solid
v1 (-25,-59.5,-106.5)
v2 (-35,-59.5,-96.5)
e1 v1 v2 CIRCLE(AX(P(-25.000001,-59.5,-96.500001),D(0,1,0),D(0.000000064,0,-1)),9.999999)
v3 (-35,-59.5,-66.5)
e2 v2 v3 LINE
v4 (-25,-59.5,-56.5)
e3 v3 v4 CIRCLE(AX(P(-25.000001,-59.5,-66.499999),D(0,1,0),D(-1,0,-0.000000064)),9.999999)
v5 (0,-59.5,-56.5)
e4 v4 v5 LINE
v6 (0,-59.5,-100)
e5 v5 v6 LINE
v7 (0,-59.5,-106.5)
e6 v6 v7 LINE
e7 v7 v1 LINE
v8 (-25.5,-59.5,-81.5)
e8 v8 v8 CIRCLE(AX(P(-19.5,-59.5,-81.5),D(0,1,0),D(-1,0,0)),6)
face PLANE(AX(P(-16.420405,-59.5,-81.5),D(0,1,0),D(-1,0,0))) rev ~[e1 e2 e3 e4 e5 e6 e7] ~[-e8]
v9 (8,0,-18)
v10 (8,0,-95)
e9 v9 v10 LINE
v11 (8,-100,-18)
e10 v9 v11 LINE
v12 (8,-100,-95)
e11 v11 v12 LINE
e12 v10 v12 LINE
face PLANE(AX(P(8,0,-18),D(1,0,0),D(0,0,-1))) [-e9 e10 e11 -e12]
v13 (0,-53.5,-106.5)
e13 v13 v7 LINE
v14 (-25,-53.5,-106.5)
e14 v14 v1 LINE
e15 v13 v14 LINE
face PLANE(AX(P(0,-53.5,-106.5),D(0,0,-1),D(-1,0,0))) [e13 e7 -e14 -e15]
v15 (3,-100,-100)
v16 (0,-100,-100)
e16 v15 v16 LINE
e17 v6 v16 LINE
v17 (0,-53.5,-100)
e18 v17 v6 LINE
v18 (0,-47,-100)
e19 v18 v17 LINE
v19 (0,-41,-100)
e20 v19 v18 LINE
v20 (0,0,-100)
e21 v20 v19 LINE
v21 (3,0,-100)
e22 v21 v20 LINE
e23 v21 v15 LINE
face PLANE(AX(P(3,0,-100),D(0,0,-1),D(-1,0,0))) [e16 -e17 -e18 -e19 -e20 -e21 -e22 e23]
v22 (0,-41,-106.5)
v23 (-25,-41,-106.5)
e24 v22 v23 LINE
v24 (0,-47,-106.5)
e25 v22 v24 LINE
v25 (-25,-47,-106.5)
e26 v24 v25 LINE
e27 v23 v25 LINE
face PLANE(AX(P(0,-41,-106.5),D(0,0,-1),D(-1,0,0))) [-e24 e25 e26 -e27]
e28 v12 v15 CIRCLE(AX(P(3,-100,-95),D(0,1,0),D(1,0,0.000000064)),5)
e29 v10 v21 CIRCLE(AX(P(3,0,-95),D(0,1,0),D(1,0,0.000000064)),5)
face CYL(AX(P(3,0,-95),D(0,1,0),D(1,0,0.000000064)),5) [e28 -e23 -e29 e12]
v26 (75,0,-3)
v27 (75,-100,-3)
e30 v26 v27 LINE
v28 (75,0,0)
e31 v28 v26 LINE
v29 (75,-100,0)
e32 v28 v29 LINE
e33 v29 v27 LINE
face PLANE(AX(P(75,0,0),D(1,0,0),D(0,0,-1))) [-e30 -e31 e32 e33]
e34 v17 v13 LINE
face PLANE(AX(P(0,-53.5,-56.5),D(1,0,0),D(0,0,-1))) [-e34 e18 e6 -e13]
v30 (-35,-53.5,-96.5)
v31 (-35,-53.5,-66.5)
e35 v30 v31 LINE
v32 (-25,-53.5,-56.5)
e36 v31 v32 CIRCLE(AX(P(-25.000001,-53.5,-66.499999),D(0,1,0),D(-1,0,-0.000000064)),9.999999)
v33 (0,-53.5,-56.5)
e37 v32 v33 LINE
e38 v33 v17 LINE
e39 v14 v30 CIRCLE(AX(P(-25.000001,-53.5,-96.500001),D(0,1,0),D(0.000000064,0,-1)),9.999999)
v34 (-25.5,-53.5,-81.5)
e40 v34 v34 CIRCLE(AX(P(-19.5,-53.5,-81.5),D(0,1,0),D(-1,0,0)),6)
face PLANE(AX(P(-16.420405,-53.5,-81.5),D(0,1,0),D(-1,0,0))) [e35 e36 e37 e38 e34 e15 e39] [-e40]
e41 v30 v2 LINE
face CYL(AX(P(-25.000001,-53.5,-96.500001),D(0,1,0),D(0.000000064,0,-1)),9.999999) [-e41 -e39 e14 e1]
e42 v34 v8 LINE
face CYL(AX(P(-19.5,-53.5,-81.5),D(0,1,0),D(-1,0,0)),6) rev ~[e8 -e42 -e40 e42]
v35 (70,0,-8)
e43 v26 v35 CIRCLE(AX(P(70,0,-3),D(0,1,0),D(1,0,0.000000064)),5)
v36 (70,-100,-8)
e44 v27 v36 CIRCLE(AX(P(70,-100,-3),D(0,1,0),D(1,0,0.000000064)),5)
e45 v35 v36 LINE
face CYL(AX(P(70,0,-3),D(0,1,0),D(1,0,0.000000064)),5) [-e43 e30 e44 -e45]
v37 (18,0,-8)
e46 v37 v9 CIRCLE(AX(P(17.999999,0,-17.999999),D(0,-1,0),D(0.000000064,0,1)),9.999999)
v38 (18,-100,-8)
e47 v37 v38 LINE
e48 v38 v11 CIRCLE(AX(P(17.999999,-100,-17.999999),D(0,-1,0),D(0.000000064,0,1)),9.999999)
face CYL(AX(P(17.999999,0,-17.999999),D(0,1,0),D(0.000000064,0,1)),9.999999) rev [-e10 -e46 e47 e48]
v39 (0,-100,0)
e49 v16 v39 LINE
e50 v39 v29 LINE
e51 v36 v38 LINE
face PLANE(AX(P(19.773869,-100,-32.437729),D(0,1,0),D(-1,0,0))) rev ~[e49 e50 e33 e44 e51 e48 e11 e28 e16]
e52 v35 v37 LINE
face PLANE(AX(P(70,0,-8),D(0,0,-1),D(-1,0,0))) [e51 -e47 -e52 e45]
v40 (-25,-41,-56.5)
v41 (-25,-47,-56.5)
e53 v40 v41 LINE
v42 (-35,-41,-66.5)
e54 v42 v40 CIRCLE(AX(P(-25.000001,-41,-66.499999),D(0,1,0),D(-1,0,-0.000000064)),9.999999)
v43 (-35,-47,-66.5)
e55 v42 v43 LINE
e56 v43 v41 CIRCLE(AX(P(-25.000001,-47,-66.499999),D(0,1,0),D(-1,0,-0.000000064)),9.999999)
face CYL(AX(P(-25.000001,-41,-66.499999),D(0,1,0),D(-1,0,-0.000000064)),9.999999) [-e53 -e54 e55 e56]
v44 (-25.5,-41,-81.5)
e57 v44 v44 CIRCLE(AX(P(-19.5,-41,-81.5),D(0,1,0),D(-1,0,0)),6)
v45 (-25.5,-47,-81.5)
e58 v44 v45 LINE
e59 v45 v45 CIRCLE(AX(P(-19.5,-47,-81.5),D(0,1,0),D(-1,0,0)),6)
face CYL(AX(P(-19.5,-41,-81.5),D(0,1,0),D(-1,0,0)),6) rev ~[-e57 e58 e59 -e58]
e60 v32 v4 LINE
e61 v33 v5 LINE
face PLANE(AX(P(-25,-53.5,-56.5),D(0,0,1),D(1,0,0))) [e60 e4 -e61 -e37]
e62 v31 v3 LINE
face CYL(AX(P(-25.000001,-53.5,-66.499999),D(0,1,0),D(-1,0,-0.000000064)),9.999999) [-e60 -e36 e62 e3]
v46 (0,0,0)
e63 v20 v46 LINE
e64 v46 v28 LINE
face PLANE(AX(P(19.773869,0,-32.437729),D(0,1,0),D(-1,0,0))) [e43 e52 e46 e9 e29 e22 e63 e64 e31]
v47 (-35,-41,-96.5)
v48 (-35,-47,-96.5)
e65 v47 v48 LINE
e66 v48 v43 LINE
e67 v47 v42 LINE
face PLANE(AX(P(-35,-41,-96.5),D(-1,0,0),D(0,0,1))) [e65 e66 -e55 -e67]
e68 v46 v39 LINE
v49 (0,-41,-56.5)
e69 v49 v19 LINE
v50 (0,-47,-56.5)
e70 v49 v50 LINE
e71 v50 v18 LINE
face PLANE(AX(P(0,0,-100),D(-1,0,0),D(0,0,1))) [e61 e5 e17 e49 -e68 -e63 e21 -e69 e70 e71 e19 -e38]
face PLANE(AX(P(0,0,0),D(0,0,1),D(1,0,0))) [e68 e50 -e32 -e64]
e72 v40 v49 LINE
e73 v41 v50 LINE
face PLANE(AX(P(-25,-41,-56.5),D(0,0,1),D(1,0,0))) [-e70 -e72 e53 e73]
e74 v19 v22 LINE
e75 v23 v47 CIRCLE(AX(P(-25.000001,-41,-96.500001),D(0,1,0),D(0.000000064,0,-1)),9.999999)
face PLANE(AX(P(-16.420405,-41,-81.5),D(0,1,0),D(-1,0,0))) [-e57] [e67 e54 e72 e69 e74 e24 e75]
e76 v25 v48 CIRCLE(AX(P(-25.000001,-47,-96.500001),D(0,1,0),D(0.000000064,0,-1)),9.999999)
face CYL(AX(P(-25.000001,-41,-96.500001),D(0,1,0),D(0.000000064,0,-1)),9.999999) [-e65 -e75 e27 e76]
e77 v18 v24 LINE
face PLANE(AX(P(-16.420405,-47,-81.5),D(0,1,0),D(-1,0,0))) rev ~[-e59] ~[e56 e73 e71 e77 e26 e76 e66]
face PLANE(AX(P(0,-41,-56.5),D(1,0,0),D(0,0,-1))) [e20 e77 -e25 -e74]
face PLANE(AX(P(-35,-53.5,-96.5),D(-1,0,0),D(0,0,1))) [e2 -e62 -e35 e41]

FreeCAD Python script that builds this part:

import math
import FreeCAD as App
import Part
import Sketcher
Q = App.Units.Quantity

doc = App.newDocument("Part")
body = doc.addObject("PartDesign::Body", "Body")

sketch1 = body.newObject("Sketcher::SketchObject", "Sketch")
sketch1.AttachmentSupport = (doc.getObject("XZ_Plane"), [""])
sketch1.MapMode = "FlatFace"
sketch1.addGeometry([
    Part.LineSegment(App.Vector(0, 0, 0), App.Vector(-75, 0, 0)),
    Part.LineSegment(App.Vector(-75, 0, 0), App.Vector(-75, -3, 0)),
    Part.ArcOfCircle(Part.Circle(App.Vector(-70, -3, 0), App.Vector(0, 0, 1), 5), math.radians(180), math.radians(270)),
    Part.LineSegment(App.Vector(-70, -8, 0), App.Vector(-18, -8, 0)),
    Part.ArcOfCircle(Part.Circle(App.Vector(-18, -18, 0), App.Vector(0, 0, 1), 10), math.radians(0), math.radians(90)),
    Part.LineSegment(App.Vector(-8, -18, 0), App.Vector(-8, -95, 0)),
    Part.ArcOfCircle(Part.Circle(App.Vector(-3, -95, 0), App.Vector(0, 0, 1), 5), math.radians(180), math.radians(270)),
    Part.LineSegment(App.Vector(-3, -100, 0), App.Vector(0, -100, 0)),
    Part.LineSegment(App.Vector(0, -100, 0), App.Vector(0, 0, 0)),
], False)
sketch1.addConstraint([
    Sketcher.Constraint("Coincident", 0, 2, 1, 1),
    Sketcher.Constraint("Tangent", 1, 2, 2, 1),
    Sketcher.Constraint("Tangent", 2, 2, 3, 1),
    Sketcher.Constraint("Tangent", 3, 2, 4, 2),
    Sketcher.Constraint("Tangent", 4, 1, 5, 1),
    Sketcher.Constraint("Tangent", 5, 2, 6, 1),
    Sketcher.Constraint("Tangent", 6, 2, 7, 1),
    Sketcher.Constraint("Coincident", 7, 2, 8, 1),
    Sketcher.Constraint("Coincident", 8, 2, 0, 1),
    Sketcher.Constraint("Horizontal", 0),
    Sketcher.Constraint("Vertical", 1),
    Sketcher.Constraint("Horizontal", 3),
    Sketcher.Constraint("Vertical", 5),
    Sketcher.Constraint("Horizontal", 7),
    Sketcher.Constraint("Vertical", 8),
    Sketcher.Constraint("Coincident", 8, 2, -1, 1),
    Sketcher.Constraint("Equal", 2, 6),
    Sketcher.Constraint("Equal", 7, 1),
    Sketcher.Constraint("Radius", 2, Q("5 mm")),
    Sketcher.Constraint("Radius", 4, Q("9.999999 mm")),
    Sketcher.Constraint("DistanceX", 0, 2, 0, 1, Q("75 mm")),
    Sketcher.Constraint("DistanceX", 3, 1, 3, 2, Q("52 mm")),
    Sketcher.Constraint("DistanceY", 5, 2, 5, 1, Q("77 mm")),
])
pad1 = body.newObject("PartDesign::Pad", "Pad")
pad1.Profile = sketch1
pad1.Length = 100
pad1.Reversed = True

sketch2 = body.newObject("Sketcher::SketchObject", "Sketch001")
sketch2.AttachmentSupport = (doc.getObject("XZ_Plane"), [""])
sketch2.MapMode = "FlatFace"
sketch2.AttachmentOffset = App.Placement(App.Vector(0, 0, -41), App.Rotation())
sketch2.addGeometry([
    Part.LineSegment(App.Vector(25, -56, 0), App.Vector(0, -56, 0)),
    Part.LineSegment(App.Vector(0, -56, 0), App.Vector(0, -106, 0)),
    Part.LineSegment(App.Vector(0, -106, 0), App.Vector(25, -106, 0)),
    Part.ArcOfCircle(Part.Circle(App.Vector(25, -97, 0), App.Vector(0, 0, 1), 10), math.radians(-90), math.radians(0)),
    Part.LineSegment(App.Vector(35, -96, 0), App.Vector(35, -66, 0)),
    Part.ArcOfCircle(Part.Circle(App.Vector(25, -66, 0), App.Vector(0, 0, 1), 10), math.radians(0), math.radians(90)),
    Part.Circle(App.Vector(20, -82, 0), App.Vector(0, 0, 1), 6),
], False)
sketch2.addConstraint([
    Sketcher.Constraint("Coincident", 0, 2, 1, 1),
    Sketcher.Constraint("Coincident", 1, 2, 2, 1),
    Sketcher.Constraint("Tangent", 2, 2, 3, 1),
    Sketcher.Constraint("Tangent", 3, 2, 4, 1),
    Sketcher.Constraint("Tangent", 4, 2, 5, 1),
    Sketcher.Constraint("Tangent", 5, 2, 0, 1),
    Sketcher.Constraint("Horizontal", 0),
    Sketcher.Constraint("Vertical", 1),
    Sketcher.Constraint("Horizontal", 2),
    Sketcher.Constraint("Vertical", 4),
    Sketcher.Constraint("Equal", 3, 5),
    Sketcher.Constraint("PointOnObject", 0, 2, -2),
    Sketcher.Constraint("Diameter", 6, Q("12 mm")),
    Sketcher.Constraint("Radius", 3, Q("9.999999 mm")),
    Sketcher.Constraint("DistanceX", 0, 2, 0, 1, Q("25 mm")),
    Sketcher.Constraint("DistanceY", 1, 2, 1, 1, Q("50 mm")),
    Sketcher.Constraint("DistanceY", 3, 3, 6, 3, Q("15.000001 mm")),
    Sketcher.Constraint("DistanceY", 3, 3, -1, 1, Q("96.500001 mm")),
    Sketcher.Constraint("DistanceX", -1, 1, 6, 3, Q("19.5 mm")),
])
pad2 = body.newObject("PartDesign::Pad", "Pad001")
pad2.Profile = sketch2
pad2.Length = 6
pad2.Reversed = True

sketch3 = body.newObject("Sketcher::SketchObject", "Sketch002")
sketch3.AttachmentSupport = (doc.getObject("XZ_Plane"), [""])
sketch3.MapMode = "FlatFace"
sketch3.AttachmentOffset = App.Placement(App.Vector(0, 0, -53.5), App.Rotation())
sketch3.addGeometry([
    Part.LineSegment(App.Vector(25, -56, 0), App.Vector(0, -56, 0)),
    Part.LineSegment(App.Vector(0, -56, 0), App.Vector(0, -106, 0)),
    Part.LineSegment(App.Vector(0, -106, 0), App.Vector(25, -106, 0)),
    Part.ArcOfCircle(Part.Circle(App.Vector(25, -97, 0), App.Vector(0, 0, 1), 10), math.radians(-90), math.radians(0)),
    Part.LineSegment(App.Vector(35, -96, 0), App.Vector(35, -66, 0)),
    Part.ArcOfCircle(Part.Circle(App.Vector(25, -66, 0), App.Vector(0, 0, 1), 10), math.radians(0), math.radians(90)),
    Part.Circle(App.Vector(20, -82, 0), App.Vector(0, 0, 1), 6),
], False)
sketch3.addConstraint([
    Sketcher.Constraint("Coincident", 0, 2, 1, 1),
    Sketcher.Constraint("Coincident", 1, 2, 2, 1),
    Sketcher.Constraint("Tangent", 2, 2, 3, 1),
    Sketcher.Constraint("Tangent", 3, 2, 4, 1),
    Sketcher.Constraint("Tangent", 4, 2, 5, 1),
    Sketcher.Constraint("Tangent", 5, 2, 0, 1),
    Sketcher.Constraint("Horizontal", 0),
    Sketcher.Constraint("Vertical", 1),
    Sketcher.Constraint("Horizontal", 2),
    Sketcher.Constraint("Vertical", 4),
    Sketcher.Constraint("Equal", 3, 5),
    Sketcher.Constraint("PointOnObject", 0, 2, -2),
    Sketcher.Constraint("Diameter", 6, Q("12 mm")),
    Sketcher.Constraint("Radius", 3, Q("9.999999 mm")),
    Sketcher.Constraint("DistanceX", 0, 2, 0, 1, Q("25 mm")),
    Sketcher.Constraint("DistanceY", 1, 2, 1, 1, Q("50 mm")),
    Sketcher.Constraint("DistanceY", 3, 3, 6, 3, Q("15.000001 mm")),
    Sketcher.Constraint("DistanceY", 3, 3, -1, 1, Q("96.500001 mm")),
    Sketcher.Constraint("DistanceX", -1, 1, 6, 3, Q("19.5 mm")),
])
pad3 = body.newObject("PartDesign::Pad", "Pad002")
pad3.Profile = sketch3
pad3.Length = 6
pad3.Reversed = True
body2 = doc.addObject("PartDesign::Body", "Body001")
doc.recompute()

body.Placement = App.Placement(App.Vector(0, 0, 0), App.Rotation(App.Vector(0, 0, 1), 180))
boolean = body2.newObject("PartDesign::Boolean", "Boolean")
boolean.Type = "Fuse"
boolean.addObjects([body])

doc.recompute()
